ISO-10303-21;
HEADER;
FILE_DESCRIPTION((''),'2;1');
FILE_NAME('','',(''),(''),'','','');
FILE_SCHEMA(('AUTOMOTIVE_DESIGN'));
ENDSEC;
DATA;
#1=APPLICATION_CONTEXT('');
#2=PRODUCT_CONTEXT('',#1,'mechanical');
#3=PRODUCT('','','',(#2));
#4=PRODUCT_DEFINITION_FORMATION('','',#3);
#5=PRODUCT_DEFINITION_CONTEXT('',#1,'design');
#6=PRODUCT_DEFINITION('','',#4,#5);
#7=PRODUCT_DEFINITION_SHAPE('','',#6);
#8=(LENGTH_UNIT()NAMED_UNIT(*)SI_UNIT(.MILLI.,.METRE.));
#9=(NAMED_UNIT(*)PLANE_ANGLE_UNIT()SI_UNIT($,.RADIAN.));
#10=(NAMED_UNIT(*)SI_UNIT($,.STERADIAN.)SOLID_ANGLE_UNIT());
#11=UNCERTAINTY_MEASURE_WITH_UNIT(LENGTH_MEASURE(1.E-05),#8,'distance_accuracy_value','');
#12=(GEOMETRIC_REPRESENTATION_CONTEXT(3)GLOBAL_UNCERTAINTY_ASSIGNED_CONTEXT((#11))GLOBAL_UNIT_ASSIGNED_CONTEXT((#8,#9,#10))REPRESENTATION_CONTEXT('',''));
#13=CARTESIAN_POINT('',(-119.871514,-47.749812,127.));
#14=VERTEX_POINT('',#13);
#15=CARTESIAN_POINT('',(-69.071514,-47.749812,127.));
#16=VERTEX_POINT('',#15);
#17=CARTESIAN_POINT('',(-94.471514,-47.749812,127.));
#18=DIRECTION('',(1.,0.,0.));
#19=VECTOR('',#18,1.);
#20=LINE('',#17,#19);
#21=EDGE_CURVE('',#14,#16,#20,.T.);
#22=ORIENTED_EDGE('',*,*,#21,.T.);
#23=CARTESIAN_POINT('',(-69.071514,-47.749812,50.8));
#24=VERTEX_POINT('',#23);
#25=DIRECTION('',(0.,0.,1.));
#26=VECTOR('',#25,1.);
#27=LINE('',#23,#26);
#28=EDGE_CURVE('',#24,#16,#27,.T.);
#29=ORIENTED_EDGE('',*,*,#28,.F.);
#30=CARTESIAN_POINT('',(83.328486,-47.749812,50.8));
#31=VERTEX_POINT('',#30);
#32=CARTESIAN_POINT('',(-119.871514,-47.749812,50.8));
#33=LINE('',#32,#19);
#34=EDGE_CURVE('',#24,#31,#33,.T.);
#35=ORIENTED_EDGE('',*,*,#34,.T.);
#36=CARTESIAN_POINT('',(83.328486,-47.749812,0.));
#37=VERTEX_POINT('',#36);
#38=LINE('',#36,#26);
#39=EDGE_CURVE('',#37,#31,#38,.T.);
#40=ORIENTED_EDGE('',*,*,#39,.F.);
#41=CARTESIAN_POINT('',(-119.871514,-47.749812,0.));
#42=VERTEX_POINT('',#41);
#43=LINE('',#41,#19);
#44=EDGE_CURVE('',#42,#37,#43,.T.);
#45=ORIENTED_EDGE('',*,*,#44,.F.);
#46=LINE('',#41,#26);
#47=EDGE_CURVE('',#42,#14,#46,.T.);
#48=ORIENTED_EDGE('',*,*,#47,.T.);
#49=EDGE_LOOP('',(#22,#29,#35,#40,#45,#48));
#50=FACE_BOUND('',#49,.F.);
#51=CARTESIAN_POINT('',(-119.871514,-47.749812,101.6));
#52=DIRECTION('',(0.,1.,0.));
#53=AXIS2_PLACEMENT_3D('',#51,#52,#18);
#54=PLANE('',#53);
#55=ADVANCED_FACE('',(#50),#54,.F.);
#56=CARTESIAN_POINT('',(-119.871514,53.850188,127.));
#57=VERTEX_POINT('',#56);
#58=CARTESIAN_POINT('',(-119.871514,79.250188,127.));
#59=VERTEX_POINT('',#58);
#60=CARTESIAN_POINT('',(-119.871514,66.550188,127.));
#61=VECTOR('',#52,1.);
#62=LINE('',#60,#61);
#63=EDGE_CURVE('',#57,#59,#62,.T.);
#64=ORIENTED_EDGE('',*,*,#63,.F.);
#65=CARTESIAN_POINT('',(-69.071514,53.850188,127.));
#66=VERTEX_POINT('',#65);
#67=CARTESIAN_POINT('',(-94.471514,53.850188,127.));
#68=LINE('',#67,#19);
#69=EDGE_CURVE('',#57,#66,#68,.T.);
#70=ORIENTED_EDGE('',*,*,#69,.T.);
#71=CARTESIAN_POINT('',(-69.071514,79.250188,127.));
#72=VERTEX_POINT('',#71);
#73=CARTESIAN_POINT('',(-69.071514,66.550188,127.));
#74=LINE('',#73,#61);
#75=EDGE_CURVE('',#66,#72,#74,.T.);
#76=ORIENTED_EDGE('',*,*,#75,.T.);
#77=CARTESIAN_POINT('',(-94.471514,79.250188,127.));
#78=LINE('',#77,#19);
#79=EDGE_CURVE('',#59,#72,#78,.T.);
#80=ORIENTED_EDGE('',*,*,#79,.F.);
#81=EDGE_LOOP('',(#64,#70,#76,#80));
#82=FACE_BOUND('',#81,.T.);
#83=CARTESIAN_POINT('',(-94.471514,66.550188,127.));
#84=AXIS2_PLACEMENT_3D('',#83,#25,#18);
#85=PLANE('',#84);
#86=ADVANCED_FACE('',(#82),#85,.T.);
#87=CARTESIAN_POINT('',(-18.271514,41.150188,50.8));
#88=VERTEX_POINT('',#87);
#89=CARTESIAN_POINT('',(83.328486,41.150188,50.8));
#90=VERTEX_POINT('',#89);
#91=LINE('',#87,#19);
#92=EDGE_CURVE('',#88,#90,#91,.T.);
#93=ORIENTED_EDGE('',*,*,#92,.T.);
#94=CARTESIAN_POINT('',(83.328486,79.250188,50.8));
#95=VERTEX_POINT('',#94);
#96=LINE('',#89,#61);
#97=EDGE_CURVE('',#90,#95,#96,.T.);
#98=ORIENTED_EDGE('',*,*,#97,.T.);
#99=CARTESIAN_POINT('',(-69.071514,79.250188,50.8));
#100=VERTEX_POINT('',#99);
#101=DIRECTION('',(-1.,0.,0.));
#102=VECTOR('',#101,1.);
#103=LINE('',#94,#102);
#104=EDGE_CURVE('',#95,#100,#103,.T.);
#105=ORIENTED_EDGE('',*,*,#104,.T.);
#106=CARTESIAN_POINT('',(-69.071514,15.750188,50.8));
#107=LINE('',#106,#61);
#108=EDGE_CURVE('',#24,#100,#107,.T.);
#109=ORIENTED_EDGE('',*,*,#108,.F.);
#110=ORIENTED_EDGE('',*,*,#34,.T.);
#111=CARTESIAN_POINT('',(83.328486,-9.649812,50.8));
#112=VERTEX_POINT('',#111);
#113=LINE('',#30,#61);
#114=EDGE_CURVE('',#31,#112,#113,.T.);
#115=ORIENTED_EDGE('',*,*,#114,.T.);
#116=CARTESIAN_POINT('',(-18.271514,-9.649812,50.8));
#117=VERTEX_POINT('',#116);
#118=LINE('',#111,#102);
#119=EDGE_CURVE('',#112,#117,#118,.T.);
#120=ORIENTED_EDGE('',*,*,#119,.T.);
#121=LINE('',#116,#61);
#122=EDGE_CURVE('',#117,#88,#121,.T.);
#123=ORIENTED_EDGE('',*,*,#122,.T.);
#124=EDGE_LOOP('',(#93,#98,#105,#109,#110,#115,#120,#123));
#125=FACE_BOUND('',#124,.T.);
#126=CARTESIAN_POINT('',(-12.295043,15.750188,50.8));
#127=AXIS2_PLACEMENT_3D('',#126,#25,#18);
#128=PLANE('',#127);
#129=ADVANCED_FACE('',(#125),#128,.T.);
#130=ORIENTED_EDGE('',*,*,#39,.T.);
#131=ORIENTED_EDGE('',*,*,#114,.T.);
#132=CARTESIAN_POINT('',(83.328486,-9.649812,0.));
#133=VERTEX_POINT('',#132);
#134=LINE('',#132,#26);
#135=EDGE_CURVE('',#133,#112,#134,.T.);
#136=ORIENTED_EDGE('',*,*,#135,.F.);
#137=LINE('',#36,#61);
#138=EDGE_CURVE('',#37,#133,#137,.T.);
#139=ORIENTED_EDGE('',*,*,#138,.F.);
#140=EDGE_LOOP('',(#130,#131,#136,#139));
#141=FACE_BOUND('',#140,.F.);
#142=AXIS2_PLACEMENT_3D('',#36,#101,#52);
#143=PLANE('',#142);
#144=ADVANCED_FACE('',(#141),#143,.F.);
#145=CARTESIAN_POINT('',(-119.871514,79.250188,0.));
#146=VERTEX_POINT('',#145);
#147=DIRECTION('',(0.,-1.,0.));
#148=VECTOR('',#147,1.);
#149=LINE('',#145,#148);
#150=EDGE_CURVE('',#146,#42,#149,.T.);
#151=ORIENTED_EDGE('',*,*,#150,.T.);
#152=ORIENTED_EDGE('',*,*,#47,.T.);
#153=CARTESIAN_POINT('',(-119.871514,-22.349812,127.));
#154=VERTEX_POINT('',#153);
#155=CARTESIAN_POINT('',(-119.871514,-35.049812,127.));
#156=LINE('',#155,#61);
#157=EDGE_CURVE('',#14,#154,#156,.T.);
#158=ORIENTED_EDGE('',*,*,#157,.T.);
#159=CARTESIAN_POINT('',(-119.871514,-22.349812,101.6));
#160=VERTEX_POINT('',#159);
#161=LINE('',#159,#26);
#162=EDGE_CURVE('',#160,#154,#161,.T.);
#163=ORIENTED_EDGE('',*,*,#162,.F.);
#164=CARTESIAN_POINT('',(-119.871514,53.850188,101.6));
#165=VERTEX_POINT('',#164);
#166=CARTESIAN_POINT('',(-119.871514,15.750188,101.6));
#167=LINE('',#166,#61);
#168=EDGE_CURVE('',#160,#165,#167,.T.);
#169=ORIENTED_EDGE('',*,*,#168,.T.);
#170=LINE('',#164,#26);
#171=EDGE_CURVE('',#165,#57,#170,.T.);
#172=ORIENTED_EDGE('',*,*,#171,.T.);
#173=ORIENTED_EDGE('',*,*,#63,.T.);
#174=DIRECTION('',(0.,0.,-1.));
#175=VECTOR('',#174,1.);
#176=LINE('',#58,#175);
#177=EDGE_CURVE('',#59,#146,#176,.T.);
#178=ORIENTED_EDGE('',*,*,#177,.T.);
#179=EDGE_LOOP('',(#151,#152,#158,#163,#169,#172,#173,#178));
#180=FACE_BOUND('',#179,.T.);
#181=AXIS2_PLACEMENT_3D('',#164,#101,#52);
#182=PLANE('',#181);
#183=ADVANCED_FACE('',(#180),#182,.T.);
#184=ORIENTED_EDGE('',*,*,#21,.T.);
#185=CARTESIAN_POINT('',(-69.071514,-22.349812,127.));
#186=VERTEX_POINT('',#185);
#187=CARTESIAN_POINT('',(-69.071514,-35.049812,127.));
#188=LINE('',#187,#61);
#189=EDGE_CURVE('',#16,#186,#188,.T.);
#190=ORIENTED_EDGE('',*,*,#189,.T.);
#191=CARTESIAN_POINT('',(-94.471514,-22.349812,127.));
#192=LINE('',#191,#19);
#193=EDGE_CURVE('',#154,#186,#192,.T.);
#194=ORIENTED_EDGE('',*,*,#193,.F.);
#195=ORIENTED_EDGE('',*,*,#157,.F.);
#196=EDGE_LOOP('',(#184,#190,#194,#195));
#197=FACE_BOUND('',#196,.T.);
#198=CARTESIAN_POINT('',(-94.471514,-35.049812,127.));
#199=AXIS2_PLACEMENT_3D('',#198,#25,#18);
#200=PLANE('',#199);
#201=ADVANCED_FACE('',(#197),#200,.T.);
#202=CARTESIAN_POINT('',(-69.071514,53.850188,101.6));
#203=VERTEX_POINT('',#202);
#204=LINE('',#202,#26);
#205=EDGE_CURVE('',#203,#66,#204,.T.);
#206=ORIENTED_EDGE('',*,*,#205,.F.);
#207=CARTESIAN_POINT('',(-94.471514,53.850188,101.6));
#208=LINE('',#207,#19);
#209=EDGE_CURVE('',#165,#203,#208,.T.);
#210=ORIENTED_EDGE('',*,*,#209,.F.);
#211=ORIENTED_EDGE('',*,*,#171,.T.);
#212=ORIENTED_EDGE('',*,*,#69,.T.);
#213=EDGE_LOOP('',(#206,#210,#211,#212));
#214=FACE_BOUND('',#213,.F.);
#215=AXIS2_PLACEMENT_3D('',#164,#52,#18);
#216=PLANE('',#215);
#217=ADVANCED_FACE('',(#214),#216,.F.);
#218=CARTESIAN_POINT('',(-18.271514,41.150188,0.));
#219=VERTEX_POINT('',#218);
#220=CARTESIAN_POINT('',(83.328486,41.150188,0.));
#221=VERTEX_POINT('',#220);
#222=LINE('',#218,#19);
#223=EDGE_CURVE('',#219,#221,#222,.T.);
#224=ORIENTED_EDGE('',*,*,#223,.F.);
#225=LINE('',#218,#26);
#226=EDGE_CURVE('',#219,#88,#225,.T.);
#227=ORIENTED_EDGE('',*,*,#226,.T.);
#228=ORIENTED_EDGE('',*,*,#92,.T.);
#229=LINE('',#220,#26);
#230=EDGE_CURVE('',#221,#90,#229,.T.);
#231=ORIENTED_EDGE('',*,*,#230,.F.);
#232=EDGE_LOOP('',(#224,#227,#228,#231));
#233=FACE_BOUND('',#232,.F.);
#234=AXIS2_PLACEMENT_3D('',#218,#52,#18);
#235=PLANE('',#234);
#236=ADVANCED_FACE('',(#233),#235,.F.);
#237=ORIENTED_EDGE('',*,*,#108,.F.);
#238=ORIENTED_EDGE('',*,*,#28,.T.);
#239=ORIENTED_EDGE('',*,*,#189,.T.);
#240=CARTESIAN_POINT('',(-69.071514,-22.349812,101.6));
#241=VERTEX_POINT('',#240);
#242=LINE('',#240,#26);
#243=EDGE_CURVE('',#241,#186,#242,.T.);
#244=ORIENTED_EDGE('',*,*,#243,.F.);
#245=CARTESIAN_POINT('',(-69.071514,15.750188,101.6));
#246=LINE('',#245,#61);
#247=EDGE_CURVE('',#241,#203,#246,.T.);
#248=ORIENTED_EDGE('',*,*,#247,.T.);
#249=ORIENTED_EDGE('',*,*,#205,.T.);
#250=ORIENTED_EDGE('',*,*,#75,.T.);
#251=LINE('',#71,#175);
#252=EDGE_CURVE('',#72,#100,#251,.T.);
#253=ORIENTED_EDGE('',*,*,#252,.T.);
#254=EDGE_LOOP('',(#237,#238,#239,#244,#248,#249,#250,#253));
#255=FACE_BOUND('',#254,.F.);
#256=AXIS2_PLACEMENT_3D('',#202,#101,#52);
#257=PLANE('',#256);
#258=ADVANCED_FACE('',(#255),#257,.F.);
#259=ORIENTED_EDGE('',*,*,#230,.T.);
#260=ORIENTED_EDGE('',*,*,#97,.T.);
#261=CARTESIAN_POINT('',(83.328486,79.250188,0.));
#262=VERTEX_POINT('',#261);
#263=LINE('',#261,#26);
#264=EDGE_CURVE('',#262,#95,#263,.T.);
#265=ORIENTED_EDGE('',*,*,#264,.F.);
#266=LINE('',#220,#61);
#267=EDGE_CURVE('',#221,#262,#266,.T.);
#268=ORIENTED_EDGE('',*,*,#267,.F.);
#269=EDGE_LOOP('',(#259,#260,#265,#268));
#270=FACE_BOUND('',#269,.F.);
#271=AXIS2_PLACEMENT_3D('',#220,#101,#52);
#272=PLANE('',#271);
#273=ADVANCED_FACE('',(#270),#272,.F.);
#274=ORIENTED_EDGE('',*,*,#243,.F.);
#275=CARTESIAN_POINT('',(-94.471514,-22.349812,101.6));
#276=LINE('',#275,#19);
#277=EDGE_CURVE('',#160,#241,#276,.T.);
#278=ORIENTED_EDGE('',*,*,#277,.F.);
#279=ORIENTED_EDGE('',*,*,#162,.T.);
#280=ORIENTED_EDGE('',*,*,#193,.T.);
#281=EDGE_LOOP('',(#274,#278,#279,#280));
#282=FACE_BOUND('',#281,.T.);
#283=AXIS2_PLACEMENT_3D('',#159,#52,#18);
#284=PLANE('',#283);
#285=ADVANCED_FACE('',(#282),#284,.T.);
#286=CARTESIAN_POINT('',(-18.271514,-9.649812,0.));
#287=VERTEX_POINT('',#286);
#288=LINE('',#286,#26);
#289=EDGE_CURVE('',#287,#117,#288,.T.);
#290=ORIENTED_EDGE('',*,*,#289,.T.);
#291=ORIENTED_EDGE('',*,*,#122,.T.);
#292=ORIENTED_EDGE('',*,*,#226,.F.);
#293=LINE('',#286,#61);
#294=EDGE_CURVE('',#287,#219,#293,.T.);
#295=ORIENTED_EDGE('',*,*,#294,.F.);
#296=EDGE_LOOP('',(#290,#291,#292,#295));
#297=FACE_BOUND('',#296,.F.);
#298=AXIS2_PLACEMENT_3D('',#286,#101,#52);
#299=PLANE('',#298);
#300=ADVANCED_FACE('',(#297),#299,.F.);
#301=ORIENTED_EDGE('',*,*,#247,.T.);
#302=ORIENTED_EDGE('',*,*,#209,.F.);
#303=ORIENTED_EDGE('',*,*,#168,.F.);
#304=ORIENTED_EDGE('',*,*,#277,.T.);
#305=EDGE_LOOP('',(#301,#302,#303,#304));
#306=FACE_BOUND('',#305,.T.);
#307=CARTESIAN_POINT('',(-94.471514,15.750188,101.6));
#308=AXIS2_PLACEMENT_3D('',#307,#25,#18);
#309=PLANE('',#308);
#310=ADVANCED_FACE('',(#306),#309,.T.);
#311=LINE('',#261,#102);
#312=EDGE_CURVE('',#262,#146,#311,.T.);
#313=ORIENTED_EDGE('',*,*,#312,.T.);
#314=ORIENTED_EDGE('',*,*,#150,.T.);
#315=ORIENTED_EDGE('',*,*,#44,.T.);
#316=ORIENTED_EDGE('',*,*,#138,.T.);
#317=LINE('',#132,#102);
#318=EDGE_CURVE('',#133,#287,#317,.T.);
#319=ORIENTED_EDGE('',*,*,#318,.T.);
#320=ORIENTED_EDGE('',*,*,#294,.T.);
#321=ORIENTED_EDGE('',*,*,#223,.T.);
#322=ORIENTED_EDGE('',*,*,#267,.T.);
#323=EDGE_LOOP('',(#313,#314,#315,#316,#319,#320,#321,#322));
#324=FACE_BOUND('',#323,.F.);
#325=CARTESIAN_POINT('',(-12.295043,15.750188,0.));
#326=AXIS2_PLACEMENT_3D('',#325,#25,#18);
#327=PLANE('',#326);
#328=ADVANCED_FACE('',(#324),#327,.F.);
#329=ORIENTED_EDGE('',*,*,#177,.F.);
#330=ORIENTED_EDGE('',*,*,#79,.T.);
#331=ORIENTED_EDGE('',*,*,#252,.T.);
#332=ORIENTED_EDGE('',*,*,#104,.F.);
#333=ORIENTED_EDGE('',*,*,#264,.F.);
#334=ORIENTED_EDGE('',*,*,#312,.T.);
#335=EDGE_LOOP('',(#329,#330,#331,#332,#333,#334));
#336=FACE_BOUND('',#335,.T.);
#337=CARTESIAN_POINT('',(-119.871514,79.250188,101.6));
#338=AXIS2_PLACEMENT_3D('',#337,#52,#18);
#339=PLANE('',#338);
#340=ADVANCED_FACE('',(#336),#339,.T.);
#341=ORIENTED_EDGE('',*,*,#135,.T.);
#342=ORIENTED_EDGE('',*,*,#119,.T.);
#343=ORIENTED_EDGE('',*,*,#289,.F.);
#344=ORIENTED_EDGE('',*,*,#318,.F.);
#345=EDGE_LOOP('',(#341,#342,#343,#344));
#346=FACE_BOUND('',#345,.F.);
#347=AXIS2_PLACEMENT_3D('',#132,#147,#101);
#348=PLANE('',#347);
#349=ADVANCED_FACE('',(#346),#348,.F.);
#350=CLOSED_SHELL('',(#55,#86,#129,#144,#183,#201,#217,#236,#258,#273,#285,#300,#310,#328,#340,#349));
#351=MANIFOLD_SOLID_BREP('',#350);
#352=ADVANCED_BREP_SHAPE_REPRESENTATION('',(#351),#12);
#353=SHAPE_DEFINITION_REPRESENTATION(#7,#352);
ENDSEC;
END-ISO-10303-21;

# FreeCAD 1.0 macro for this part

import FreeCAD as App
import Part
import Sketcher
from FreeCAD import Vector
Q = App.Units.Quantity

doc = App.newDocument("Part")
params = doc.addObject("Spreadsheet::Sheet", "Params")
for row, (alias, value) in enumerate([
    ("sketch1_width", "8 in"),
    ("sketch1_width2", "4 in"),
    ("sketch1_height", "5 in"),
    ("sketch1_height2", "2 in"),
    ("pad1_length", "2 in"),
    ("sketch2_width", "2 in"),
    ("sketch2_height", "5 in"),
    ("pad2_length", "2 in"),
    ("sketch3_width", "2 in"),
    ("sketch3_height", "1 in"),
    ("pad3_length", "1 in"),
    ("sketch4_width", "2 in"),
    ("sketch4_height", "1 in"),
    ("pad4_length", "1 in"),
], start=1):
    params.set(f"A{row}", alias)
    params.set(f"B{row}", "=" + value)
    params.setAlias(f"B{row}", alias)

body = doc.addObject("PartDesign::Body", "Body")

sketch1 = body.newObject("Sketcher::SketchObject", "Sketch")
sketch1.AttachmentSupport = (doc.getObject("XY_Plane"), [""])
sketch1.MapMode = "FlatFace"
sketch1.addGeometry([
    Part.LineSegment(Vector(83, 79, 0), Vector(-120, 79, 0)),
    Part.LineSegment(Vector(-120, 79, 0), Vector(-120, -48, 0)),
    Part.LineSegment(Vector(-120, -48, 0), Vector(83, -48, 0)),
    Part.LineSegment(Vector(83, -48, 0), Vector(83, -10, 0)),
    Part.LineSegment(Vector(83, -10, 0), Vector(-18, -10, 0)),
    Part.LineSegment(Vector(-18, -10, 0), Vector(-18, 41, 0)),
    Part.LineSegment(Vector(-18, 41, 0), Vector(83, 41, 0)),
    Part.LineSegment(Vector(83, 41, 0), Vector(83, 79, 0)),
], False)
sketch1.addConstraint([
    Sketcher.Constraint("Coincident", 0, 2, 1, 1),
    Sketcher.Constraint("Coincident", 1, 2, 2, 1),
    Sketcher.Constraint("Coincident", 2, 2, 3, 1),
    Sketcher.Constraint("Coincident", 3, 2, 4, 1),
    Sketcher.Constraint("Coincident", 4, 2, 5, 1),
    Sketcher.Constraint("Coincident", 5, 2, 6, 1),
    Sketcher.Constraint("Coincident", 6, 2, 7, 1),
    Sketcher.Constraint("Coincident", 7, 2, 0, 1),
    Sketcher.Constraint("Horizontal", 0),
    Sketcher.Constraint("Vertical", 1),
    Sketcher.Constraint("Horizontal", 2),
    Sketcher.Constraint("Vertical", 3),
    Sketcher.Constraint("Horizontal", 4),
    Sketcher.Constraint("Vertical", 5),
    Sketcher.Constraint("Horizontal", 6),
    Sketcher.Constraint("Vertical", 7),
    Sketcher.Constraint("Vertical", 3, 2, 6, 2),
    Sketcher.Constraint("Equal", 3, 7),
    Sketcher.Constraint("DistanceX", 0, 2, 0, 1, Q("8 in")),
    Sketcher.Constraint("DistanceX", 4, 2, 4, 1, Q("4 in")),
    Sketcher.Constraint("DistanceY", 1, 2, 1, 1, Q("5 in")),
    Sketcher.Constraint("DistanceY", 5, 1, 5, 2, Q("2 in")),
    Sketcher.Constraint("DistanceX", 0, 2, -1, 1, 119.871514),
    Sketcher.Constraint("DistanceY", -1, 1, 0, 2, 79.250188),
])
sketch1.setExpression("Constraints[18]", "Params.sketch1_width")
sketch1.setExpression("Constraints[19]", "Params.sketch1_width2")
sketch1.setExpression("Constraints[20]", "Params.sketch1_height")
sketch1.setExpression("Constraints[21]", "Params.sketch1_height2")
pad1 = body.newObject("PartDesign::Pad", "Pad")
pad1.Profile = sketch1
pad1.setExpression("Length", "Params.pad1_length")

sketch2 = body.newObject("Sketcher::SketchObject", "Sketch001")
sketch2.AttachmentSupport = (doc.getObject("XY_Plane"), [""])
sketch2.MapMode = "FlatFace"
sketch2.AttachmentOffset = App.Placement(Vector(0, 0, 2 * 25.4), App.Rotation())
sketch2.addGeometry([
    Part.LineSegment(Vector(-120, 79, 0), Vector(-120, -48, 0)),
    Part.LineSegment(Vector(-120, -48, 0), Vector(-69, -48, 0)),
    Part.LineSegment(Vector(-69, -48, 0), Vector(-69, 79, 0)),
    Part.LineSegment(Vector(-69, 79, 0), Vector(-120, 79, 0)),
], False)
sketch2.addConstraint([
    Sketcher.Constraint("Coincident", 0, 2, 1, 1),
    Sketcher.Constraint("Coincident", 1, 2, 2, 1),
    Sketcher.Constraint("Coincident", 2, 2, 3, 1),
    Sketcher.Constraint("Coincident", 3, 2, 0, 1),
    Sketcher.Constraint("Vertical", 0),
    Sketcher.Constraint("Horizontal", 1),
    Sketcher.Constraint("Vertical", 2),
    Sketcher.Constraint("Horizontal", 3),
    Sketcher.Constraint("DistanceX", 1, 1, 1, 2, Q("2 in")),
    Sketcher.Constraint("DistanceY", 0, 2, 0, 1, Q("5 in")),
    Sketcher.Constraint("DistanceX", 0, 2, -1, 1, 119.871514),
    Sketcher.Constraint("DistanceY", 0, 2, -1, 1, 47.749812),
])
sketch2.setExpression("Constraints[8]", "Params.sketch2_width")
sketch2.setExpression("Constraints[9]", "Params.sketch2_height")
pad2 = body.newObject("PartDesign::Pad", "Pad001")
pad2.Profile = sketch2
pad2.setExpression("Length", "Params.pad2_length")

sketch3 = body.newObject("Sketcher::SketchObject", "Sketch002")
sketch3.AttachmentSupport = (doc.getObject("XY_Plane"), [""])
sketch3.MapMode = "FlatFace"
sketch3.AttachmentOffset = App.Placement(Vector(0, 0, 4 * 25.4), App.Rotation())
sketch3.addGeometry([
    Part.LineSegment(Vector(-120, -22, 0), Vector(-120, -48, 0)),
    Part.LineSegment(Vector(-120, -48, 0), Vector(-69, -48, 0)),
    Part.LineSegment(Vector(-69, -48, 0), Vector(-69, -22, 0)),
    Part.LineSegment(Vector(-69, -22, 0), Vector(-120, -22, 0)),
], False)
sketch3.addConstraint([
    Sketcher.Constraint("Coincident", 0, 2, 1, 1),
    Sketcher.Constraint("Coincident", 1, 2, 2, 1),
    Sketcher.Constraint("Coincident", 2, 2, 3, 1),
    Sketcher.Constraint("Coincident", 3, 2, 0, 1),
    Sketcher.Constraint("Vertical", 0),
    Sketcher.Constraint("Horizontal", 1),
    Sketcher.Constraint("Vertical", 2),
    Sketcher.Constraint("Horizontal", 3),
    Sketcher.Constraint("DistanceX", 1, 1, 1, 2, Q("2 in")),
    Sketcher.Constraint("DistanceY", 0, 2, 0, 1, Q("1 in")),
    Sketcher.Constraint("DistanceY", 2, 2, -1, 1, 22.349812),
    Sketcher.Constraint("DistanceX", 0, 2, -1, 1, 119.871514),
])
sketch3.setExpression("Constraints[8]", "Params.sketch3_width")
sketch3.setExpression("Constraints[9]", "Params.sketch3_height")
pad3 = body.newObject("PartDesign::Pad", "Pad002")
pad3.Profile = sketch3
pad3.setExpression("Length", "Params.pad3_length")

sketch4 = body.newObject("Sketcher::SketchObject", "Sketch003")
sketch4.AttachmentSupport = (doc.getObject("XY_Plane"), [""])
sketch4.MapMode = "FlatFace"
sketch4.AttachmentOffset = App.Placement(Vector(0, 0, 4 * 25.4), App.Rotation())
sketch4.addGeometry([
    Part.LineSegment(Vector(-120, 79, 0), Vector(-120, 54, 0)),
    Part.LineSegment(Vector(-120, 54, 0), Vector(-69, 54, 0)),
    Part.LineSegment(Vector(-69, 54, 0), Vector(-69, 79, 0)),
    Part.LineSegment(Vector(-69, 79, 0), Vector(-120, 79, 0)),
], False)
sketch4.addConstraint([
    Sketcher.Constraint("Coincident", 0, 2, 1, 1),
    Sketcher.Constraint("Coincident", 1, 2, 2, 1),
    Sketcher.Constraint("Coincident", 2, 2, 3, 1),
    Sketcher.Constraint("Coincident", 3, 2, 0, 1),
    Sketcher.Constraint("Vertical", 0),
    Sketcher.Constraint("Horizontal", 1),
    Sketcher.Constraint("Vertical", 2),
    Sketcher.Constraint("Horizontal", 3),
    Sketcher.Constraint("DistanceX", 1, 1, 1, 2, Q("2 in")),
    Sketcher.Constraint("DistanceY", 0, 2, 0, 1, Q("1 in")),
    Sketcher.Constraint("DistanceY", -1, 1, 0, 2, 53.850188),
    Sketcher.Constraint("DistanceX", 0, 2, -1, 1, 119.871514),
])
sketch4.setExpression("Constraints[8]", "Params.sketch4_width")
sketch4.setExpression("Constraints[9]", "Params.sketch4_height")
pad4 = body.newObject("PartDesign::Pad", "Pad003")
pad4.Profile = sketch4
pad4.setExpression("Length", "Params.pad4_length")

doc.recompute()
